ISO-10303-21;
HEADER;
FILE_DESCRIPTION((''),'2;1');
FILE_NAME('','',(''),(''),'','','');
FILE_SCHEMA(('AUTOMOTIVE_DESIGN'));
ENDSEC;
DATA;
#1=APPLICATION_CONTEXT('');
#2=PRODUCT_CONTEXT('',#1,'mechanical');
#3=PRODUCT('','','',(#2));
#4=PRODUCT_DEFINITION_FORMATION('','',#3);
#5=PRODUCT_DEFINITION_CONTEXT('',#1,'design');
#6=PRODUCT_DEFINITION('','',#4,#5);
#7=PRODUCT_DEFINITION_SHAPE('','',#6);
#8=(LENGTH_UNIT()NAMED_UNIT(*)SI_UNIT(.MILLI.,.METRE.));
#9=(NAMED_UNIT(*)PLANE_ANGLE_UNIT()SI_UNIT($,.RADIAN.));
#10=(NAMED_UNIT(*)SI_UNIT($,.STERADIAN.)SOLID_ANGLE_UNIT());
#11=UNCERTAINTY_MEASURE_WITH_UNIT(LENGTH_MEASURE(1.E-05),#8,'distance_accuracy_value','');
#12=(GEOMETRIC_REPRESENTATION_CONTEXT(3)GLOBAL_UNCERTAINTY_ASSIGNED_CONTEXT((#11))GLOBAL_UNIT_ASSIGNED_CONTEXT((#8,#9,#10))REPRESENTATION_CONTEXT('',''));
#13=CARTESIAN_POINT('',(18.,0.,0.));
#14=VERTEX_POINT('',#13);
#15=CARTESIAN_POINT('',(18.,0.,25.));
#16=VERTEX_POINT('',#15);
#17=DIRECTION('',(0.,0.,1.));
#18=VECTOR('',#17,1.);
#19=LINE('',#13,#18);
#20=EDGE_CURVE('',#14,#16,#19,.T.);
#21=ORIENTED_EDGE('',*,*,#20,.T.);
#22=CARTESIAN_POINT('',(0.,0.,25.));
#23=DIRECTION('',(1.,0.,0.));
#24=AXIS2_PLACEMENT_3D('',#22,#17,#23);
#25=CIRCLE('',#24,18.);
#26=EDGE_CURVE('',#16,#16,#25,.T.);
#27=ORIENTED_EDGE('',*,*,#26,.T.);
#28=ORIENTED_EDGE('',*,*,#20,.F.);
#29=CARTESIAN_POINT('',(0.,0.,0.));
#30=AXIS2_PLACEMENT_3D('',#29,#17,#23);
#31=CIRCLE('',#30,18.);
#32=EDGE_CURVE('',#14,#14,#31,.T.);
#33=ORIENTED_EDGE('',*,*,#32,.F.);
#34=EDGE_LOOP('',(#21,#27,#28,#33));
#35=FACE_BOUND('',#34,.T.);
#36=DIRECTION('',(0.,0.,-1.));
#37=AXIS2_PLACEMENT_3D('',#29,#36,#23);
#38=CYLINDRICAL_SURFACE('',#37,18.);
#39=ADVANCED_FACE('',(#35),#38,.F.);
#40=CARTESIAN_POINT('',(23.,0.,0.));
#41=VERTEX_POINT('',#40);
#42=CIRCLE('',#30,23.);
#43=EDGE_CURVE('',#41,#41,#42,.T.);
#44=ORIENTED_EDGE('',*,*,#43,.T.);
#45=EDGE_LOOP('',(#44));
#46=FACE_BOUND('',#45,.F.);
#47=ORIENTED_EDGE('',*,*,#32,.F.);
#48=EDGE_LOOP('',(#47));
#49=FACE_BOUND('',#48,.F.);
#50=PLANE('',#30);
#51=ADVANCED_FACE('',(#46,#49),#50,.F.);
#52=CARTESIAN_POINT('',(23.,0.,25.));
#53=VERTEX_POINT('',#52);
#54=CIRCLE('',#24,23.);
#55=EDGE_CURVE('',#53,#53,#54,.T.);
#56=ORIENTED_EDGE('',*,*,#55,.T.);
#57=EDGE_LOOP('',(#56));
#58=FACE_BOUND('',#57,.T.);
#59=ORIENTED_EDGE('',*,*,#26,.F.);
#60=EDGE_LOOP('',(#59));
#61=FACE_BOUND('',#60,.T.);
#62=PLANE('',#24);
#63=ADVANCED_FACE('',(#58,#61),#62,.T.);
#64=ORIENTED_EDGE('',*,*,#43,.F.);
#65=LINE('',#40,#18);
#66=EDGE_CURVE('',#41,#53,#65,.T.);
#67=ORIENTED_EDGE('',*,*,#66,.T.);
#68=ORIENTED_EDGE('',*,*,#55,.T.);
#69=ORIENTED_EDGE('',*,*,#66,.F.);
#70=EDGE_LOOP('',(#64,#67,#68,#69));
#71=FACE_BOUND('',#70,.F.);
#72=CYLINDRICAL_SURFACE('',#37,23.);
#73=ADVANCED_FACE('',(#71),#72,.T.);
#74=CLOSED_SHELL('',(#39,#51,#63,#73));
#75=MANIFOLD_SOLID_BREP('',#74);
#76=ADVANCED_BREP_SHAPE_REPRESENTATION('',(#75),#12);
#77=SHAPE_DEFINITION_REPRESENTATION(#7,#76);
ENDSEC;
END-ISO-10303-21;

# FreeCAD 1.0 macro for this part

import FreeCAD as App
import Part
import Sketcher
Q = App.Units.Quantity

doc = App.newDocument("Part")
body = doc.addObject("PartDesign::Body", "Body")

# Sketch on XY plane
sketch1 = body.newObject("Sketcher::SketchObject", "Sketch")
sketch1.AttachmentSupport = (doc.getObject("XY_Plane"), [""])
sketch1.MapMode = "FlatFace"
sketch1.addGeometry(Part.Circle(App.Vector(0, 0, 0), App.Vector(0, 0, 1), 23), False)
sketch1.addGeometry(Part.Circle(App.Vector(0, 0, 0), App.Vector(0, 0, 1), 18), False)
sketch1.addConstraint(Sketcher.Constraint("Coincident", 0, 3, -1, 1))
sketch1.addConstraint(Sketcher.Constraint("Coincident", 1, 3, -1, 1))
sketch1.addConstraint(Sketcher.Constraint("Diameter", 0, Q("46 mm")))
sketch1.addConstraint(Sketcher.Constraint("Diameter", 1, Q("36 mm")))
pad1 = body.newObject("PartDesign::Pad", "Pad")
pad1.Profile = sketch1
pad1.Length = 25

doc.recompute()
